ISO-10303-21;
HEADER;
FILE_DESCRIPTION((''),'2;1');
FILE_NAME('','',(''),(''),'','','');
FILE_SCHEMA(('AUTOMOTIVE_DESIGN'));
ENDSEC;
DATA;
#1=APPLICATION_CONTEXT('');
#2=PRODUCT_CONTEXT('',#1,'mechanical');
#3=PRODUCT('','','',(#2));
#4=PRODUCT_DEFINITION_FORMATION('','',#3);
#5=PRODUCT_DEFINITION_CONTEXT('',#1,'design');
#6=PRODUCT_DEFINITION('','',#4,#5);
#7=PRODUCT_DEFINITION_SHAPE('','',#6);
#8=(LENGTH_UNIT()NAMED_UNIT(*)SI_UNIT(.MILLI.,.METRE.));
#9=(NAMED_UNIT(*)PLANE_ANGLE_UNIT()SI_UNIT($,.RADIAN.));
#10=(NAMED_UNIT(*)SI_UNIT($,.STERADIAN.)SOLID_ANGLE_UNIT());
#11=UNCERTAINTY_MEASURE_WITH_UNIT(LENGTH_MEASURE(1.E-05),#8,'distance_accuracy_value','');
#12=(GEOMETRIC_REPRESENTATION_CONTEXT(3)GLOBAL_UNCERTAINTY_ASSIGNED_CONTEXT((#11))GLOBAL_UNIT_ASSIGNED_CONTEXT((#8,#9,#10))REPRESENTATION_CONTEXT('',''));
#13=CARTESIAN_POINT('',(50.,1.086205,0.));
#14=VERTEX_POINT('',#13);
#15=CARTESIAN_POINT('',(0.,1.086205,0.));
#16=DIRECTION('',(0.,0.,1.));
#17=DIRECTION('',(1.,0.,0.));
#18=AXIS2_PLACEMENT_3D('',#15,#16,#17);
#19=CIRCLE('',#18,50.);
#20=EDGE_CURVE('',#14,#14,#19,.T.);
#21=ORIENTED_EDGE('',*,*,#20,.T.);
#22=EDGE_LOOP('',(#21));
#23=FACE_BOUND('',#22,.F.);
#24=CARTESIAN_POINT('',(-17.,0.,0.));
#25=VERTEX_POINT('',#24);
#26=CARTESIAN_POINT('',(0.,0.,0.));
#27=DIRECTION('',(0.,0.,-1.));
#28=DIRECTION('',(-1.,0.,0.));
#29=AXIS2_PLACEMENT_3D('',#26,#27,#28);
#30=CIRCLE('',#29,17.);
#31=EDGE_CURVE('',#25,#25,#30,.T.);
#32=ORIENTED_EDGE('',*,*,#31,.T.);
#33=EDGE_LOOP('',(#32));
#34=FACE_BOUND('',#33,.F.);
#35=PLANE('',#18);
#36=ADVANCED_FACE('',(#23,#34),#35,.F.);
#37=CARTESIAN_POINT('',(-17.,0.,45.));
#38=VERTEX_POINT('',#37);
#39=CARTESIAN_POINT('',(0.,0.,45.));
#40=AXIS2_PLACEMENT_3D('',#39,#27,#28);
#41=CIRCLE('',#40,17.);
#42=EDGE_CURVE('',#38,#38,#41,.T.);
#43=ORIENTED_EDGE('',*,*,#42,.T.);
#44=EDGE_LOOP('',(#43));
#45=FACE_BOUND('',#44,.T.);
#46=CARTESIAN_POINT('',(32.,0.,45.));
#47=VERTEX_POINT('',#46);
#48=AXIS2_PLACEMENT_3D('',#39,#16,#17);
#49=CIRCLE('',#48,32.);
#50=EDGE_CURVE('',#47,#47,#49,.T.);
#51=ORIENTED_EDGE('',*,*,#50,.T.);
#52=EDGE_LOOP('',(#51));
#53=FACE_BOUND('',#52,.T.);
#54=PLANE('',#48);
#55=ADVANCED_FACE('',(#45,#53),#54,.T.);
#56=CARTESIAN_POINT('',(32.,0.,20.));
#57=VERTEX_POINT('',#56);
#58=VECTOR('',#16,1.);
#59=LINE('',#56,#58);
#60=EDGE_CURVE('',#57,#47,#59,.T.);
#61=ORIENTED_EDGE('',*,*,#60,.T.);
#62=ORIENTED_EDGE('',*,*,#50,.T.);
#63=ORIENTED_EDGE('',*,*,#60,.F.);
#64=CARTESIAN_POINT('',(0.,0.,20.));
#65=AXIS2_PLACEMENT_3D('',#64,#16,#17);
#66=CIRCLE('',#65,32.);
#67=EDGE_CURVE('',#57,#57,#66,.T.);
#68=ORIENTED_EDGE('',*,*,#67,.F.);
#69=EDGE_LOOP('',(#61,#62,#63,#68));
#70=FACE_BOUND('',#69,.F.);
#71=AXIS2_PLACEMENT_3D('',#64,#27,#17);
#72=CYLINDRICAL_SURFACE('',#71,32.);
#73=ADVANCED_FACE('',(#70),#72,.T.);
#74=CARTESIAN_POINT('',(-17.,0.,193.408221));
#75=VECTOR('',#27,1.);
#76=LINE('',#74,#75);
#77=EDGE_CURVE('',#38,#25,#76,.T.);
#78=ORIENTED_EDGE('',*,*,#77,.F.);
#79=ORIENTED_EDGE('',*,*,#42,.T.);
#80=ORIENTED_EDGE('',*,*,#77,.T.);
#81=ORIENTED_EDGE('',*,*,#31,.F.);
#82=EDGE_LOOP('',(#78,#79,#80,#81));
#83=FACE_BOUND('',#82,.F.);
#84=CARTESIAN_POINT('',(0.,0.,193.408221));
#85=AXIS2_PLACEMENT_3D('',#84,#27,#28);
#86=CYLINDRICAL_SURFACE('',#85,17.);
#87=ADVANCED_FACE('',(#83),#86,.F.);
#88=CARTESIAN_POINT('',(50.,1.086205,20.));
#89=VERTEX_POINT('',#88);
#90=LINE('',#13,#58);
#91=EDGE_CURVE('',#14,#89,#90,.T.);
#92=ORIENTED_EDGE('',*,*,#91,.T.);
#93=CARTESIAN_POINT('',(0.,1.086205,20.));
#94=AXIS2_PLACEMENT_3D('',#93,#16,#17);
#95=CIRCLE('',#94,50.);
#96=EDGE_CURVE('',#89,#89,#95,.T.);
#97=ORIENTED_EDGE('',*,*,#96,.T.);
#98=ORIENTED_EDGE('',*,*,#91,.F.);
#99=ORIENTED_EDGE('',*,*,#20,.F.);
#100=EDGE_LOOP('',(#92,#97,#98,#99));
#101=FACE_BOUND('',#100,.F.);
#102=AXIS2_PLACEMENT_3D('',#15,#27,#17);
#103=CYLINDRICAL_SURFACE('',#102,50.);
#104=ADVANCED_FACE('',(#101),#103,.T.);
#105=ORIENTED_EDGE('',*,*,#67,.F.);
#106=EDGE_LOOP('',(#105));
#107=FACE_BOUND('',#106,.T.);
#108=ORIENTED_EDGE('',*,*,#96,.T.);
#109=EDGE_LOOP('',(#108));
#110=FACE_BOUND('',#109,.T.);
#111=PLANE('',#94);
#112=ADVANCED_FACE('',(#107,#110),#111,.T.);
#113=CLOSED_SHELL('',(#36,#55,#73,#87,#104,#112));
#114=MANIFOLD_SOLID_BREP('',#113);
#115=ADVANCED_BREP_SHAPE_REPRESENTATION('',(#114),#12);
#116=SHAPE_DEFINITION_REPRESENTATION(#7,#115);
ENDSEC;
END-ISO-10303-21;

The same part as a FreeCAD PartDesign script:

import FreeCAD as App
import Part
import Sketcher

V = App.Vector

doc = App.newDocument("Part")
params = doc.addObject("Spreadsheet::Sheet", "Params")
for row, (alias, value) in enumerate([
    ("sketch1_diameter", "100 mm"),
    ("pad1_length", "20 mm"),
    ("sketch2_diameter", "64 mm"),
    ("pad2_length", "25 mm"),
    ("sketch3_diameter", "34 mm"),
    ("hole_diameter", "34 mm"),
], start=1):
    params.set(f"A{row}", alias)
    params.set(f"B{row}", "=" + value)
    params.setAlias(f"B{row}", alias)

body = doc.addObject("PartDesign::Body", "Body")

# Sketch on XY plane
sketch1 = body.newObject("Sketcher::SketchObject", "Sketch")
sketch1.AttachmentSupport = (doc.getObject("XY_Plane"), [""])
sketch1.MapMode = "FlatFace"
sketch1.addGeometry(Part.Circle(V(0, 1, 0), V(0, 0, 1), 50), False)
sketch1.addConstraint([
    Sketcher.Constraint("PointOnObject", 0, 3, -2),
    Sketcher.Constraint("Diameter", 0, 100.0),
    Sketcher.Constraint("DistanceY", -1, 1, 0, 3, 1.086205),
])
sketch1.setExpression("Constraints[1]", "Params.sketch1_diameter")
pad1 = body.newObject("PartDesign::Pad", "Pad")
pad1.Profile = sketch1
pad1.setExpression("Length", "Params.pad1_length")

# Sketch on XY plane
sketch2 = body.newObject("Sketcher::SketchObject", "Sketch001")
sketch2.AttachmentSupport = (doc.getObject("XY_Plane"), [""])
sketch2.MapMode = "FlatFace"
sketch2.AttachmentOffset = App.Placement(V(0, 0, 20), App.Rotation())
sketch2.addGeometry(Part.Circle(V(0, 0, 0), V(0, 0, 1), 32), False)
sketch2.addConstraint([
    Sketcher.Constraint("Coincident", 0, 3, -1, 1),
    Sketcher.Constraint("Diameter", 0, 64.0),
])
sketch2.setExpression("Constraints[1]", "Params.sketch2_diameter")
pad2 = body.newObject("PartDesign::Pad", "Pad001")
pad2.Profile = sketch2
pad2.setExpression("Length", "Params.pad2_length")

# Sketch on XY plane
sketch3 = body.newObject("Sketcher::SketchObject", "Sketch002")
sketch3.AttachmentSupport = (doc.getObject("XY_Plane"), [""])
sketch3.MapMode = "FlatFace"
sketch3.AttachmentOffset = App.Placement(V(0, 0, 45), App.Rotation())
sketch3.addGeometry(Part.Circle(V(0, 0, 0), V(0, 0, 1), 17), False)
sketch3.addConstraint([
    Sketcher.Constraint("Coincident", 0, 3, -1, 1),
    Sketcher.Constraint("Diameter", 0, 34.0),
])
sketch3.setExpression("Constraints[1]", "Params.sketch3_diameter")
doc.recompute()
hole = body.newObject("PartDesign::Hole", "Hole")
hole.Profile = sketch3
hole.ThreadType = "None"
hole.setExpression("Diameter", "Params.hole_diameter")
hole.DepthType = "ThroughAll"

doc.recompute()
